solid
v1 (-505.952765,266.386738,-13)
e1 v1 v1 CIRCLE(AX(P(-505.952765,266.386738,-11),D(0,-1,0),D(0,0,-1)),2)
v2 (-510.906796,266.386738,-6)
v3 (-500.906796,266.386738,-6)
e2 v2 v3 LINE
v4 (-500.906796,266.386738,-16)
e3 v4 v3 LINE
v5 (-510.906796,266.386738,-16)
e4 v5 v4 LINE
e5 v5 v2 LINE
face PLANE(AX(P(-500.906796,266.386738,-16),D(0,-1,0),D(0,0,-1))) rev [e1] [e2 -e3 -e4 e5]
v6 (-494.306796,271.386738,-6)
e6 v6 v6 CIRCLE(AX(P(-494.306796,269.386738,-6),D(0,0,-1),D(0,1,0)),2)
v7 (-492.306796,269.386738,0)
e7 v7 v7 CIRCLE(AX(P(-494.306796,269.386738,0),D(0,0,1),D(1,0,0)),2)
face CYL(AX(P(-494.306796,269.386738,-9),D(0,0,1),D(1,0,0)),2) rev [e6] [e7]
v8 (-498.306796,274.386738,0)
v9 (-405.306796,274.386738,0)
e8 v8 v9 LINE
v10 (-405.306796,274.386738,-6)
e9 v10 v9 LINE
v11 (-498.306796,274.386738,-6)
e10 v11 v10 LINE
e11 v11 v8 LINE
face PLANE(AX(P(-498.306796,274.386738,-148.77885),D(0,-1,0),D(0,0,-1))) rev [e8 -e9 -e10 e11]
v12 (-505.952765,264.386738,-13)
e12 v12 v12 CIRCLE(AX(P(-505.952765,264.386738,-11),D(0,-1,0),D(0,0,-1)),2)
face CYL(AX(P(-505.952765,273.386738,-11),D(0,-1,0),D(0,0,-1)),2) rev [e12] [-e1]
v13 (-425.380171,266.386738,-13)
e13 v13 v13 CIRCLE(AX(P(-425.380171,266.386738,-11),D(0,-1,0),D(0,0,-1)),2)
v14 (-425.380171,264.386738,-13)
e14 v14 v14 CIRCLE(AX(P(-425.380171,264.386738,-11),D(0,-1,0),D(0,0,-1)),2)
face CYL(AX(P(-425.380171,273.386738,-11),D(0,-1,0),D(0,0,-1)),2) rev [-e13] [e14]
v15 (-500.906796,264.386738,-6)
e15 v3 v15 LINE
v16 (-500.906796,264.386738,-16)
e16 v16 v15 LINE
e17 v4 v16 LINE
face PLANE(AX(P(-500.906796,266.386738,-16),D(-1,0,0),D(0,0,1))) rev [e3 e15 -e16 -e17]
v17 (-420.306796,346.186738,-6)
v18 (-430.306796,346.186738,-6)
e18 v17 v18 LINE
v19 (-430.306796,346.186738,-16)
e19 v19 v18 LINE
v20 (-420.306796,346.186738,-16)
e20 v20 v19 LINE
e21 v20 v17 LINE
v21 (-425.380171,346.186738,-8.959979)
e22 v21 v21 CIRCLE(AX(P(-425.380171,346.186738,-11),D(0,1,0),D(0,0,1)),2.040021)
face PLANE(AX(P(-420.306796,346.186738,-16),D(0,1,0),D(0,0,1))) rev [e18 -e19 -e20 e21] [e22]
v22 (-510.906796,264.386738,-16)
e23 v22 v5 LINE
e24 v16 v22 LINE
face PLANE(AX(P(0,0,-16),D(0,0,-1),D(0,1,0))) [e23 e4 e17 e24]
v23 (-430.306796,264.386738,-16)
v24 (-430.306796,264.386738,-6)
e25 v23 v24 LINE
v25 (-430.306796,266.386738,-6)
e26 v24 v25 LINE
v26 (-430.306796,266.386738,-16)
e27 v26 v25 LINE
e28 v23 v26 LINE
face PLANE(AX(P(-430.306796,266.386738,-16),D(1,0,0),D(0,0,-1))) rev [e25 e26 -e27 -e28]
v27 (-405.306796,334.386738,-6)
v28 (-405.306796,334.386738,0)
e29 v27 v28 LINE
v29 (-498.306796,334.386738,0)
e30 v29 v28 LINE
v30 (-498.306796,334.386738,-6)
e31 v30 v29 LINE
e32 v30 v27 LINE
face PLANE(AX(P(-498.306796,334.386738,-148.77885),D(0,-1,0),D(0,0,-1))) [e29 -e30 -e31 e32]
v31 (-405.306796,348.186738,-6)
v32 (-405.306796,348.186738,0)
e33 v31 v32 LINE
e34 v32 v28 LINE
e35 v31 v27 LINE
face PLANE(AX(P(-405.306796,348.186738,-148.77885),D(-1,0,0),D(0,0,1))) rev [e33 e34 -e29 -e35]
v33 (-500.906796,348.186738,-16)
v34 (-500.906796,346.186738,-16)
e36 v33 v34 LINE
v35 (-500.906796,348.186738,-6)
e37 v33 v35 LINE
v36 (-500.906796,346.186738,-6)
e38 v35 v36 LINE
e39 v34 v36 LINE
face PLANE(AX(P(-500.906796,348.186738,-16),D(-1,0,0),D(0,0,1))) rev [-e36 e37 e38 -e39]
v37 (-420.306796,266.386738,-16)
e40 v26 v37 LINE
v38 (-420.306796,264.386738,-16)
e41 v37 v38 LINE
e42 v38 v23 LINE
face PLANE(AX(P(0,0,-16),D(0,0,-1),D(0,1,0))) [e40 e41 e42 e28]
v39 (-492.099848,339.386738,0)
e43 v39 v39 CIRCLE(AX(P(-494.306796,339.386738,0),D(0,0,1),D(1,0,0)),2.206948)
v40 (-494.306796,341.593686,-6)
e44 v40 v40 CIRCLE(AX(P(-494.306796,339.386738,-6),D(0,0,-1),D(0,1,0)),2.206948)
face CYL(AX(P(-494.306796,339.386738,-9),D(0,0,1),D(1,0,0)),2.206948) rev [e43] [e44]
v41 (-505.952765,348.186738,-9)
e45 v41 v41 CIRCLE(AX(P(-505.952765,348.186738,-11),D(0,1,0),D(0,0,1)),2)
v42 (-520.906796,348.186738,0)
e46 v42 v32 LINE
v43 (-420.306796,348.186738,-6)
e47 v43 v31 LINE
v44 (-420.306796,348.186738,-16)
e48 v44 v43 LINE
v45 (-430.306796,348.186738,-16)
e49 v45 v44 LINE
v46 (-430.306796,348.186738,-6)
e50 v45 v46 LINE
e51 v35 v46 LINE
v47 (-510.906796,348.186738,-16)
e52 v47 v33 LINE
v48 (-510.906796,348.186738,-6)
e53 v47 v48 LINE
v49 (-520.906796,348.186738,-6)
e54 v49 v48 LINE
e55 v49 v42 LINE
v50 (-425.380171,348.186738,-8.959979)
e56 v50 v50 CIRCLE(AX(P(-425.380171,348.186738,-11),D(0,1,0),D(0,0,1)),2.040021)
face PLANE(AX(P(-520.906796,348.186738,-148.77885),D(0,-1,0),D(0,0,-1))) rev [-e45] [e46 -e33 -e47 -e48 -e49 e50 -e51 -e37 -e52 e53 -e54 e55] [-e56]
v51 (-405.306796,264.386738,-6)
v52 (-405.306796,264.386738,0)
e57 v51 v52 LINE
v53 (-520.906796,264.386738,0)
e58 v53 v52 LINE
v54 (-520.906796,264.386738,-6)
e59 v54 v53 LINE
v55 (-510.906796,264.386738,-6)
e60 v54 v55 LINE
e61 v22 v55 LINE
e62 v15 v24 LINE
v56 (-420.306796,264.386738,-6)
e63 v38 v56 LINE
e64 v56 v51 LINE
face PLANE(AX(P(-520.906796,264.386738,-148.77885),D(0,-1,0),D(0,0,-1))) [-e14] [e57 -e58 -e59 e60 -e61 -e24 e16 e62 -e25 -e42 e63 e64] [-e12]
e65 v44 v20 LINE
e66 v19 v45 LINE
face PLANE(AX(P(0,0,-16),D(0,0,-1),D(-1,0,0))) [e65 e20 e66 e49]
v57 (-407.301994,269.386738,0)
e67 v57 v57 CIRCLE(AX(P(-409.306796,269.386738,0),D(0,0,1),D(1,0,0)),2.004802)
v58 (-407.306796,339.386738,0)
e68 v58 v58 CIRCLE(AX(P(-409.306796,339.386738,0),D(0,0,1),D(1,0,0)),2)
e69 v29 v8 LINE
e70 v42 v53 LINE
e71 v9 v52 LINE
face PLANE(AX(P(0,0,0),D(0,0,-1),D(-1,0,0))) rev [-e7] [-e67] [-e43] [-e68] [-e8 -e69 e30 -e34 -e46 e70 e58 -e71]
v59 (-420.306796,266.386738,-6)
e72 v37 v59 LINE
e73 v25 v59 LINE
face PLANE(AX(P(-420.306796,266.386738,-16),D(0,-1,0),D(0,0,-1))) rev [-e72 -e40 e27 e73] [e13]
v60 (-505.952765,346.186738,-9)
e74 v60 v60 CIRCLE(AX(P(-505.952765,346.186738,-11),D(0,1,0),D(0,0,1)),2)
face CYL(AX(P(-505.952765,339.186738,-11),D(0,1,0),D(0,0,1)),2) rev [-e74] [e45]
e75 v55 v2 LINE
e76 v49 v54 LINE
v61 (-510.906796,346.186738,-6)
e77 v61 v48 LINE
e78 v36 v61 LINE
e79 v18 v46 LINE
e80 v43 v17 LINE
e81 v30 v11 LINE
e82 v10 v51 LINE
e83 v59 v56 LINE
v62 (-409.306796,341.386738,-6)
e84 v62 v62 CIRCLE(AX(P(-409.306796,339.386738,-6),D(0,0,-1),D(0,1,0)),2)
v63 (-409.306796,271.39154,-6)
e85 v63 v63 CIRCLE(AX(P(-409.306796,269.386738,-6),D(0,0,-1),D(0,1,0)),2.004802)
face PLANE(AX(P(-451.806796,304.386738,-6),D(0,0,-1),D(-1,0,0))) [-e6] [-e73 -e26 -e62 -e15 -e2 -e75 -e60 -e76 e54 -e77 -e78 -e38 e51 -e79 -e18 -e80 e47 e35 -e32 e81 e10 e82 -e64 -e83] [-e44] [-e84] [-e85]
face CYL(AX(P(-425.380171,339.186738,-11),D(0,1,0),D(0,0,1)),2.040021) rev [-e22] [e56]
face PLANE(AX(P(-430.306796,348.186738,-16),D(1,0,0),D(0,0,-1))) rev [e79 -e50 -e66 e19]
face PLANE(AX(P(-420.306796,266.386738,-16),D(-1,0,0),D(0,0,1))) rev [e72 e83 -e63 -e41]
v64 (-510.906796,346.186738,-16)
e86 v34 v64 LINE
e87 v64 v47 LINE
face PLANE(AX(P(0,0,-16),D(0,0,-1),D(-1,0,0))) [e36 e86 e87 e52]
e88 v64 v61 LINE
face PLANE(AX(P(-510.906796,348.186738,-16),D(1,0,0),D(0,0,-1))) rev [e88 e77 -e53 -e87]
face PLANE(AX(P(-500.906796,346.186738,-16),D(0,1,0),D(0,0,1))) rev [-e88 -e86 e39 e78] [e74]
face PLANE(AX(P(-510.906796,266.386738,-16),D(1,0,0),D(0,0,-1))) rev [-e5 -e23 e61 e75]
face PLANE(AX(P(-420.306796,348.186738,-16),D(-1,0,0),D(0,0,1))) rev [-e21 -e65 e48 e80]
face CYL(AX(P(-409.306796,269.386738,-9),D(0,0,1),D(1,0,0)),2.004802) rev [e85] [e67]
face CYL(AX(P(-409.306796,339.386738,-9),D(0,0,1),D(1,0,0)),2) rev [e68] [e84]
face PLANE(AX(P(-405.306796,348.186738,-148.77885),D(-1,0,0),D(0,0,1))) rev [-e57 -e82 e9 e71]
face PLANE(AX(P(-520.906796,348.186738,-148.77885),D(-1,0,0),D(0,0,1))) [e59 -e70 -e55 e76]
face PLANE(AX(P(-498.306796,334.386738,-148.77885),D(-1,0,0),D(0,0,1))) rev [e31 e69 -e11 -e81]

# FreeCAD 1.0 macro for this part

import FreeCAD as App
import Part
import Sketcher

V = App.Vector

doc = App.newDocument("Part")
body = doc.addObject("PartDesign::Body", "Body")

# Sketch on XY plane
sketch1 = body.newObject("Sketcher::SketchObject", "Sketch")
sketch1.AttachmentSupport = (doc.getObject("XY_Plane"), [""])
sketch1.MapMode = "FlatFace"
sketch1.addGeometry(Part.LineSegment(V(-405, 348, 0), V(-521, 348, 0)), False)
sketch1.addGeometry(Part.LineSegment(V(-521, 348, 0), V(-521, 264, 0)), False)
sketch1.addGeometry(Part.LineSegment(V(-521, 264, 0), V(-405, 264, 0)), False)
sketch1.addGeometry(Part.LineSegment(V(-405, 264, 0), V(-405, 274, 0)), False)
sketch1.addGeometry(Part.LineSegment(V(-405, 274, 0), V(-498, 274, 0)), False)
sketch1.addGeometry(Part.LineSegment(V(-498, 274, 0), V(-498, 334, 0)), False)
sketch1.addGeometry(Part.LineSegment(V(-498, 334, 0), V(-405, 334, 0)), False)
sketch1.addGeometry(Part.LineSegment(V(-405, 334, 0), V(-405, 348, 0)), False)
sketch1.addConstraint(Sketcher.Constraint("Coincident", 0, 2, 1, 1))
sketch1.addConstraint(Sketcher.Constraint("Coincident", 1, 2, 2, 1))
sketch1.addConstraint(Sketcher.Constraint("Coincident", 2, 2, 3, 1))
sketch1.addConstraint(Sketcher.Constraint("Coincident", 3, 2, 4, 1))
sketch1.addConstraint(Sketcher.Constraint("Coincident", 4, 2, 5, 1))
sketch1.addConstraint(Sketcher.Constraint("Coincident", 5, 2, 6, 1))
sketch1.addConstraint(Sketcher.Constraint("Coincident", 6, 2, 7, 1))
sketch1.addConstraint(Sketcher.Constraint("Coincident", 7, 2, 0, 1))
sketch1.addConstraint(Sketcher.Constraint("Horizontal", 0))
sketch1.addConstraint(Sketcher.Constraint("Vertical", 1))
sketch1.addConstraint(Sketcher.Constraint("Horizontal", 2))
sketch1.addConstraint(Sketcher.Constraint("Vertical", 3))
sketch1.addConstraint(Sketcher.Constraint("Horizontal", 4))
sketch1.addConstraint(Sketcher.Constraint("Vertical", 5))
sketch1.addConstraint(Sketcher.Constraint("Horizontal", 6))
sketch1.addConstraint(Sketcher.Constraint("Vertical", 7))
sketch1.addConstraint(Sketcher.Constraint("Vertical", 3, 2, 6, 2))
sketch1.addConstraint(Sketcher.Constraint("DistanceX", 4, 2, 4, 1, 93.0))
sketch1.addConstraint(Sketcher.Constraint("DistanceY", 3, 1, 3, 2, 10.0))
sketch1.addConstraint(Sketcher.Constraint("DistanceY", 5, 1, 5, 2, 60.0))
sketch1.addConstraint(Sketcher.Constraint("DistanceX", 0, 2, 0, 1, 115.6))
sketch1.addConstraint(Sketcher.Constraint("DistanceY", 1, 2, 1, 1, 83.8))
sketch1.addConstraint(Sketcher.Constraint("DistanceX", 0, 2, -1, 1, 520.906796))
sketch1.addConstraint(Sketcher.Constraint("DistanceY", -1, 1, 0, 2, 348.186738))
pad1 = body.newObject("PartDesign::Pad", "Pad")
pad1.Profile = sketch1
pad1.Length = 6
pad1.Reversed = True

# Sketch on XY plane
sketch2 = body.newObject("Sketcher::SketchObject", "Sketch001")
sketch2.AttachmentSupport = (doc.getObject("XY_Plane"), [""])
sketch2.MapMode = "FlatFace"
sketch2.AttachmentOffset = App.Placement(V(0, 0, -6), App.Rotation())
sketch2.addGeometry(Part.LineSegment(V(-500.9, 348.2, 0), V(-500.9, 346.2, 0)), False)
sketch2.addGeometry(Part.LineSegment(V(-500.9, 346.2, 0), V(-510.9, 346.2, 0)), False)
sketch2.addGeometry(Part.LineSegment(V(-510.9, 346.2, 0), V(-510.9, 348.2, 0)), False)
sketch2.addGeometry(Part.LineSegment(V(-510.9, 348.2, 0), V(-500.9, 348.2, 0)), False)
sketch2.addGeometry(Part.LineSegment(V(-500.9, 266.4, 0), V(-500.9, 264.4, 0)), False)
sketch2.addGeometry(Part.LineSegment(V(-500.9, 264.4, 0), V(-510.9, 264.4, 0)), False)
sketch2.addGeometry(Part.LineSegment(V(-510.9, 264.4, 0), V(-510.9, 266.4, 0)), False)
sketch2.addGeometry(Part.LineSegment(V(-510.9, 266.4, 0), V(-500.9, 266.4, 0)), False)
sketch2.addConstraint(Sketcher.Constraint("Coincident", 0, 2, 1, 1))
sketch2.addConstraint(Sketcher.Constraint("Coincident", 1, 2, 2, 1))
sketch2.addConstraint(Sketcher.Constraint("Coincident", 2, 2, 3, 1))
sketch2.addConstraint(Sketcher.Constraint("Coincident", 3, 2, 0, 1))
sketch2.addConstraint(Sketcher.Constraint("Coincident", 4, 2, 5, 1))
sketch2.addConstraint(Sketcher.Constraint("Coincident", 5, 2, 6, 1))
sketch2.addConstraint(Sketcher.Constraint("Coincident", 6, 2, 7, 1))
sketch2.addConstraint(Sketcher.Constraint("Coincident", 7, 2, 4, 1))
sketch2.addConstraint(Sketcher.Constraint("Vertical", 0))
sketch2.addConstraint(Sketcher.Constraint("Horizontal", 1))
sketch2.addConstraint(Sketcher.Constraint("Vertical", 2))
sketch2.addConstraint(Sketcher.Constraint("Horizontal", 3))
sketch2.addConstraint(Sketcher.Constraint("Vertical", 4))
sketch2.addConstraint(Sketcher.Constraint("Horizontal", 5))
sketch2.addConstraint(Sketcher.Constraint("Vertical", 6))
sketch2.addConstraint(Sketcher.Constraint("Horizontal", 7))
sketch2.addConstraint(Sketcher.Constraint("Vertical", 3, 2, 4, 2))
sketch2.addConstraint(Sketcher.Constraint("Vertical", 2, 2, 5, 2))
sketch2.addConstraint(Sketcher.Constraint("Equal", 2, 4))
sketch2.addConstraint(Sketcher.Constraint("DistanceX", 1, 2, 1, 1, 10.0))
sketch2.addConstraint(Sketcher.Constraint("DistanceY", 0, 2, 0, 1, 2.0))
sketch2.addConstraint(Sketcher.Constraint("DistanceY", 4, 2, 0, 2, 81.8))
sketch2.addConstraint(Sketcher.Constraint("DistanceX", 0, 2, -1, 1, 500.906796))
sketch2.addConstraint(Sketcher.Constraint("DistanceY", -1, 1, 0, 2, 346.186738))
pad2 = body.newObject("PartDesign::Pad", "Pad001")
pad2.Profile = sketch2
pad2.Length = 10
pad2.Reversed = True

# Sketch on XY plane
sketch3 = body.newObject("Sketcher::SketchObject", "Sketch002")
sketch3.AttachmentSupport = (doc.getObject("XY_Plane"), [""])
sketch3.MapMode = "FlatFace"
sketch3.AttachmentOffset = App.Placement(V(0, 0, -6), App.Rotation())
sketch3.addGeometry(Part.LineSegment(V(-420.3, 348.2, 0), V(-420.3, 346.2, 0)), False)
sketch3.addGeometry(Part.LineSegment(V(-420.3, 346.2, 0), V(-430.3, 346.2, 0)), False)
sketch3.addGeometry(Part.LineSegment(V(-430.3, 346.2, 0), V(-430.3, 348.2, 0)), False)
sketch3.addGeometry(Part.LineSegment(V(-430.3, 348.2, 0), V(-420.3, 348.2, 0)), False)
sketch3.addGeometry(Part.LineSegment(V(-420.3, 266.4, 0), V(-420.3, 264.4, 0)), False)
sketch3.addGeometry(Part.LineSegment(V(-420.3, 264.4, 0), V(-430.3, 264.4, 0)), False)
sketch3.addGeometry(Part.LineSegment(V(-430.3, 264.4, 0), V(-430.3, 266.4, 0)), False)
sketch3.addGeometry(Part.LineSegment(V(-430.3, 266.4, 0), V(-420.3, 266.4, 0)), False)
sketch3.addConstraint(Sketcher.Constraint("Coincident", 0, 2, 1, 1))
sketch3.addConstraint(Sketcher.Constraint("Coincident", 1, 2, 2, 1))
sketch3.addConstraint(Sketcher.Constraint("Coincident", 2, 2, 3, 1))
sketch3.addConstraint(Sketcher.Constraint("Coincident", 3, 2, 0, 1))
sketch3.addConstraint(Sketcher.Constraint("Coincident", 4, 2, 5, 1))
sketch3.addConstraint(Sketcher.Constraint("Coincident", 5, 2, 6, 1))
sketch3.addConstraint(Sketcher.Constraint("Coincident", 6, 2, 7, 1))
sketch3.addConstraint(Sketcher.Constraint("Coincident", 7, 2, 4, 1))
sketch3.addConstraint(Sketcher.Constraint("Vertical", 0))
sketch3.addConstraint(Sketcher.Constraint("Horizontal", 1))
sketch3.addConstraint(Sketcher.Constraint("Vertical", 2))
sketch3.addConstraint(Sketcher.Constraint("Horizontal", 3))
sketch3.addConstraint(Sketcher.Constraint("Vertical", 4))
sketch3.addConstraint(Sketcher.Constraint("Horizontal", 5))
sketch3.addConstraint(Sketcher.Constraint("Vertical", 6))
sketch3.addConstraint(Sketcher.Constraint("Horizontal", 7))
sketch3.addConstraint(Sketcher.Constraint("Vertical", 3, 2, 4, 2))
sketch3.addConstraint(Sketcher.Constraint("Vertical", 2, 2, 5, 2))
sketch3.addConstraint(Sketcher.Constraint("Equal", 2, 4))
sketch3.addConstraint(Sketcher.Constraint("DistanceX", 1, 2, 1, 1, 10.0))
sketch3.addConstraint(Sketcher.Constraint("DistanceY", 0, 2, 0, 1, 2.0))
sketch3.addConstraint(Sketcher.Constraint("DistanceY", 4, 2, 0, 2, 81.8))
sketch3.addConstraint(Sketcher.Constraint("DistanceX", 0, 2, -1, 1, 420.306796))
sketch3.addConstraint(Sketcher.Constraint("DistanceY", -1, 1, 0, 2, 346.186738))
pad3 = body.newObject("PartDesign::Pad", "Pad002")
pad3.Profile = sketch3
pad3.Length = 10
pad3.Reversed = True

# Sketch on XZ plane
sketch4 = body.newObject("Sketcher::SketchObject", "Sketch003")
sketch4.AttachmentSupport = (doc.getObject("XZ_Plane"), [""])
sketch4.MapMode = "FlatFace"
sketch4.AttachmentOffset = App.Placement(V(0, 0, -348.186738), App.Rotation())
sketch4.addGeometry(Part.Circle(V(-425.4, -11, 0), V(0, 0, 1), 2), False)
sketch4.addGeometry(Part.Circle(V(-506, -11, 0), V(0, 0, 1), 2), False)
sketch4.addConstraint(Sketcher.Constraint("Horizontal", 0, 3, 1, 3))
sketch4.addConstraint(Sketcher.Constraint("Diameter", 1, 4.0))
sketch4.addConstraint(Sketcher.Constraint("DistanceY", 0, 3, -1, 1, 11.0))
sketch4.addConstraint(Sketcher.Constraint("Diameter", 0, 4.080041))
sketch4.addConstraint(Sketcher.Constraint("DistanceX", 0, 3, -1, 1, 425.380171))
sketch4.addConstraint(Sketcher.Constraint("DistanceX", 1, 3, -1, 1, 505.952765))
pocket1 = body.newObject("PartDesign::Pocket", "Pocket")
pocket1.Profile = sketch4
pocket1.Length = 9
pocket1.Reversed = True

# Sketch on XZ plane
sketch5 = body.newObject("Sketcher::SketchObject", "Sketch004")
sketch5.AttachmentSupport = (doc.getObject("XZ_Plane"), [""])
sketch5.MapMode = "FlatFace"
sketch5.AttachmentOffset = App.Placement(V(0, 0, -273.386738), App.Rotation())
sketch5.addGeometry(Part.Circle(V(-506, -11, 0), V(0, 0, 1), 2), False)
sketch5.addGeometry(Part.Circle(V(-425.4, -11, 0), V(0, 0, 1), 2), False)
sketch5.addConstraint(Sketcher.Constraint("Equal", 0, 1))
sketch5.addConstraint(Sketcher.Constraint("Horizontal", 0, 3, 1, 3))
sketch5.addConstraint(Sketcher.Constraint("Diameter", 0, 4.0))
sketch5.addConstraint(Sketcher.Constraint("DistanceY", 0, 3, -1, 1, 11.0))
sketch5.addConstraint(Sketcher.Constraint("DistanceX", 1, 3, -1, 1, 425.380171))
sketch5.addConstraint(Sketcher.Constraint("DistanceX", 0, 3, -1, 1, 505.952765))
pocket2 = body.newObject("PartDesign::Pocket", "Pocket001")
pocket2.Profile = sketch5
pocket2.Length = 9
pocket2.Reversed = True

# Sketch on XY plane
sketch6 = body.newObject("Sketcher::SketchObject", "Sketch005")
sketch6.AttachmentSupport = (doc.getObject("XY_Plane"), [""])
sketch6.MapMode = "FlatFace"
sketch6.addGeometry(Part.Circle(V(-494.3, 339.4, 0), V(0, 0, 1), 2.2), False)
sketch6.addGeometry(Part.Circle(V(-409.3, 339.4, 0), V(0, 0, 1), 2), False)
sketch6.addGeometry(Part.Circle(V(-409.3, 269.4, 0), V(0, 0, 1), 2), False)
sketch6.addGeometry(Part.Circle(V(-494.3, 269.4, 0), V(0, 0, 1), 2), False)
sketch6.addConstraint(Sketcher.Constraint("Equal", 1, 3))
sketch6.addConstraint(Sketcher.Constraint("Horizontal", 0, 3, 1, 3))
sketch6.addConstraint(Sketcher.Constraint("Horizontal", 2, 3, 3, 3))
sketch6.addConstraint(Sketcher.Constraint("Vertical", 1, 3, 2, 3))
sketch6.addConstraint(Sketcher.Constraint("Vertical", 0, 3, 3, 3))
sketch6.addConstraint(Sketcher.Constraint("Diameter", 1, 4.0))
sketch6.addConstraint(Sketcher.Constraint("DistanceX", 0, 3, 1, 3, 85.0))
sketch6.addConstraint(Sketcher.Constraint("DistanceY", 2, 3, 1, 3, 70.0))
sketch6.addConstraint(Sketcher.Constraint("Diameter", 0, 4.413897))
sketch6.addConstraint(Sketcher.Constraint("Diameter", 2, 4.009604))
sketch6.addConstraint(Sketcher.Constraint("DistanceX", 0, 3, -1, 1, 494.306796))
sketch6.addConstraint(Sketcher.Constraint("DistanceY", -1, 1, 0, 3, 339.386738))
pocket3 = body.newObject("PartDesign::Pocket", "Pocket002")
pocket3.Profile = sketch6
pocket3.Length = 9

doc.recompute()
